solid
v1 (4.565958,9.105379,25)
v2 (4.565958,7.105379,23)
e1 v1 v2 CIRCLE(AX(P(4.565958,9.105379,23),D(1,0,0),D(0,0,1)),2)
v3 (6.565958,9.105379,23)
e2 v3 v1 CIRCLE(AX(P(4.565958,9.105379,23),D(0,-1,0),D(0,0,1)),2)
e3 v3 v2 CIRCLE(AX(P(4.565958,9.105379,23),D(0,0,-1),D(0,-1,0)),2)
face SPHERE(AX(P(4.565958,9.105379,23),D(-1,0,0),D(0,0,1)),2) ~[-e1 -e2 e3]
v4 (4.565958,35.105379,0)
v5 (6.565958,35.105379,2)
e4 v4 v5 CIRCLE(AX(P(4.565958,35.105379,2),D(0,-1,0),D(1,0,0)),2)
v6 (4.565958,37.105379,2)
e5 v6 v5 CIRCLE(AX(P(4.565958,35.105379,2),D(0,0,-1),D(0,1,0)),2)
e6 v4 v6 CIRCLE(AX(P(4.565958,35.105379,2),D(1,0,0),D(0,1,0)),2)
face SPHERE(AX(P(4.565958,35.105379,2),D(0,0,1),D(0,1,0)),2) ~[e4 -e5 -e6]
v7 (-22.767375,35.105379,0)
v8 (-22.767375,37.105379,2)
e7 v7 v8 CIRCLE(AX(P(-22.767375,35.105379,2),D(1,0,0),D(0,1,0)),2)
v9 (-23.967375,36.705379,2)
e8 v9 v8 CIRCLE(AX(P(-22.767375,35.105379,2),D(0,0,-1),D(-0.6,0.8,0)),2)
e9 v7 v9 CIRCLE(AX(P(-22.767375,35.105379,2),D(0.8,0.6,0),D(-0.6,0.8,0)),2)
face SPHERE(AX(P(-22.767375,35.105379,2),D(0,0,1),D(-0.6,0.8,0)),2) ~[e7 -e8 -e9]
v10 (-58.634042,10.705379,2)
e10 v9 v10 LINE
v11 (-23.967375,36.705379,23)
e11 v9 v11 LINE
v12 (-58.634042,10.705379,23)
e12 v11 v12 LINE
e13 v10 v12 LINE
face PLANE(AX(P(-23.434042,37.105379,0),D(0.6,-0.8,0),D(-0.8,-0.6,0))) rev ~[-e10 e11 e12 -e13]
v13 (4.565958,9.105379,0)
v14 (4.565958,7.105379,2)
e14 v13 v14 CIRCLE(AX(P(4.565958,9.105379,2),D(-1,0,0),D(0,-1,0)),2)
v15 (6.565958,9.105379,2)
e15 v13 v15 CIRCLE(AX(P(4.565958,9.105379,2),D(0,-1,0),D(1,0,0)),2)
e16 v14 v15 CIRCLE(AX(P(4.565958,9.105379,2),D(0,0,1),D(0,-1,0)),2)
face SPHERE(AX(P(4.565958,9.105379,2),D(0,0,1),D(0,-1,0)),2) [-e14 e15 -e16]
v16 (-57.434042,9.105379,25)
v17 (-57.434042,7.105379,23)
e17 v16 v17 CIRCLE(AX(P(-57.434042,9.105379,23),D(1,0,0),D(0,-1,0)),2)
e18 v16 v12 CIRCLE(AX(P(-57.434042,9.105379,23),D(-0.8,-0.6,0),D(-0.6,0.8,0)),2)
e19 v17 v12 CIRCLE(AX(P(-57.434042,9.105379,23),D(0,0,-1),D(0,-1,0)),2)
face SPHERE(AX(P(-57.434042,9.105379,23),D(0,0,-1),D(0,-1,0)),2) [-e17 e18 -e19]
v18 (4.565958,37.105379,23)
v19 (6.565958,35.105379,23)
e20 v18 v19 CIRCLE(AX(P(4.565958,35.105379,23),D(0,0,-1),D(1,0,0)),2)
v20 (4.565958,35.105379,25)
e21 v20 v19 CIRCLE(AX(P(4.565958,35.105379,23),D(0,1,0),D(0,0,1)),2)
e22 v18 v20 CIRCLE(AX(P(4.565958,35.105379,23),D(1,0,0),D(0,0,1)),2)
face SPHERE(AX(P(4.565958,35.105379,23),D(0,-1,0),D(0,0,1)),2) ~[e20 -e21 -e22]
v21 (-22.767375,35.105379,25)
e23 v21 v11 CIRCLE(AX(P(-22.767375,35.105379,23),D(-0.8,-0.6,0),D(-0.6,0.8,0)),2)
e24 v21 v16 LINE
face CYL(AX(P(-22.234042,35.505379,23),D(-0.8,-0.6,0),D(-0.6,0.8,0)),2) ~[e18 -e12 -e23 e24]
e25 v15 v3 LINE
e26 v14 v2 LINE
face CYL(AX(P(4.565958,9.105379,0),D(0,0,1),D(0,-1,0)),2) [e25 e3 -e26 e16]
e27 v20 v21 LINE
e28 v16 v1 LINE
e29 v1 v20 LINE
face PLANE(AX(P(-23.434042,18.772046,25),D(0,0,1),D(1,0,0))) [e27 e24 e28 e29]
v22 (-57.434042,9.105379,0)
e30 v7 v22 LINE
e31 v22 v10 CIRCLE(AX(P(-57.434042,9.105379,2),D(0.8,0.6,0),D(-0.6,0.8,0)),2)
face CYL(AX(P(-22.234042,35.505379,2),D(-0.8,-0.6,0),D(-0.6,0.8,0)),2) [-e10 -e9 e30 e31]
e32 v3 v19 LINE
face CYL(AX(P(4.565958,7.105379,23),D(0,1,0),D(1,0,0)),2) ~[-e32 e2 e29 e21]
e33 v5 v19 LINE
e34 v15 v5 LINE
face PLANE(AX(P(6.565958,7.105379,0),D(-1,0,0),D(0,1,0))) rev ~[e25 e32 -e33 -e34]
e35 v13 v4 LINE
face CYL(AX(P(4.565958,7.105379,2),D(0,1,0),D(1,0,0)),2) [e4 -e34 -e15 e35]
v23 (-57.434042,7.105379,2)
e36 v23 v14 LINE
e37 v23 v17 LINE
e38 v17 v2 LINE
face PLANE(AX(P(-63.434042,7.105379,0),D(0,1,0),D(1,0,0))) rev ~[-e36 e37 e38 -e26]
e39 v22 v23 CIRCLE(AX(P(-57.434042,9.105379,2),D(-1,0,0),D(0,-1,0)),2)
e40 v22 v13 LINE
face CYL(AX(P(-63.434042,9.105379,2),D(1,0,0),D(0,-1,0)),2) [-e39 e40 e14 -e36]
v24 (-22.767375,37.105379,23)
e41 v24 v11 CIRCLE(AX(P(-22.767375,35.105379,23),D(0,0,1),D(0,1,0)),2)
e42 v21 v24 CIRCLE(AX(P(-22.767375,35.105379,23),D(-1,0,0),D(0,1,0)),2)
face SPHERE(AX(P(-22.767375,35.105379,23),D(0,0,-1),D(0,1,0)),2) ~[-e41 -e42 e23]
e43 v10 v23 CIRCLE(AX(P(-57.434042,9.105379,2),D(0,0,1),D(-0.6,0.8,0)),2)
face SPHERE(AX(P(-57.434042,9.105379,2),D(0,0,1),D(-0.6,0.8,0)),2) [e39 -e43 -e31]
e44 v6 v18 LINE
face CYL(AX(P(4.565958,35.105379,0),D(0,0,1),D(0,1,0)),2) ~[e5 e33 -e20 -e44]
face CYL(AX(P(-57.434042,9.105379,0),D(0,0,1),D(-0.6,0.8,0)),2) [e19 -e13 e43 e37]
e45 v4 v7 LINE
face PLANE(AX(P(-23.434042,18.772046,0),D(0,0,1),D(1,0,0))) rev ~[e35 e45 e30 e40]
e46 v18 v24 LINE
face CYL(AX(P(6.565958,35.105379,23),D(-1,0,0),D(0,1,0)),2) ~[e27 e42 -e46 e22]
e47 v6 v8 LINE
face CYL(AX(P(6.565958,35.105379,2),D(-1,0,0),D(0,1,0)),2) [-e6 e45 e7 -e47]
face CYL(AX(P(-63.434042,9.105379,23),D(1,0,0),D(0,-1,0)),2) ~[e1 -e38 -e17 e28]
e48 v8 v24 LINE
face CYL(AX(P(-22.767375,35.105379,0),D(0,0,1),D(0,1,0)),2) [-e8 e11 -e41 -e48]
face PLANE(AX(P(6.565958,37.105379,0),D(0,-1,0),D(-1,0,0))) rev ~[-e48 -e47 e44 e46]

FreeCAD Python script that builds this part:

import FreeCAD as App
import Part
import Sketcher

doc = App.newDocument("Part")
body = doc.addObject("PartDesign::Body", "Body")

sketch1 = body.newObject("Sketcher::SketchObject", "Sketch")
sketch1.AttachmentSupport = (doc.getObject("XY_Plane"), [""])
sketch1.MapMode = "FlatFace"
sketch1.addGeometry(Part.LineSegment(App.Vector(6.565958, 37.105379, 0), App.Vector(-23.434042, 37.105379, 0)), False)
sketch1.addGeometry(Part.LineSegment(App.Vector(-23.434042, 37.105379, 0), App.Vector(-63.434042, 7.105379, 0)), False)
sketch1.addGeometry(Part.LineSegment(App.Vector(-63.434042, 7.105379, 0), App.Vector(6.565958, 7.105379, 0)), False)
sketch1.addGeometry(Part.LineSegment(App.Vector(6.565958, 7.105379, 0), App.Vector(6.565958, 37.105379, 0)), False)
sketch1.addConstraint(Sketcher.Constraint("Coincident", 0, 2, 1, 1))
sketch1.addConstraint(Sketcher.Constraint("Coincident", 1, 2, 2, 1))
sketch1.addConstraint(Sketcher.Constraint("Coincident", 2, 2, 3, 1))
sketch1.addConstraint(Sketcher.Constraint("Coincident", 3, 2, 0, 1))
sketch1.addConstraint(Sketcher.Constraint("Horizontal", 0))
sketch1.addConstraint(Sketcher.Constraint("Horizontal", 2))
sketch1.addConstraint(Sketcher.Constraint("Vertical", 3))
sketch1.addConstraint(Sketcher.Constraint("Equal", 0, 3))
sketch1.addConstraint(Sketcher.Constraint("DistanceX", 0, 2, 0, 1, 30.0))
sketch1.addConstraint(Sketcher.Constraint("DistanceX", 2, 1, 2, 2, 70.0))
sketch1.addConstraint(Sketcher.Constraint("DistanceY", -1, 1, 0, 2, 37.105379))
sketch1.addConstraint(Sketcher.Constraint("DistanceX", 1, 2, -1, 1, 63.434042))
pad1 = body.newObject("PartDesign::Pad", "Pad")
pad1.Profile = sketch1
pad1.Length = 25
doc.recompute()

fillet = body.newObject("PartDesign::Fillet", "Fillet")
fillet.Base = (pad1, ["Edge1"])
fillet.UseAllEdges = True
fillet.Radius = 2

doc.recompute()
